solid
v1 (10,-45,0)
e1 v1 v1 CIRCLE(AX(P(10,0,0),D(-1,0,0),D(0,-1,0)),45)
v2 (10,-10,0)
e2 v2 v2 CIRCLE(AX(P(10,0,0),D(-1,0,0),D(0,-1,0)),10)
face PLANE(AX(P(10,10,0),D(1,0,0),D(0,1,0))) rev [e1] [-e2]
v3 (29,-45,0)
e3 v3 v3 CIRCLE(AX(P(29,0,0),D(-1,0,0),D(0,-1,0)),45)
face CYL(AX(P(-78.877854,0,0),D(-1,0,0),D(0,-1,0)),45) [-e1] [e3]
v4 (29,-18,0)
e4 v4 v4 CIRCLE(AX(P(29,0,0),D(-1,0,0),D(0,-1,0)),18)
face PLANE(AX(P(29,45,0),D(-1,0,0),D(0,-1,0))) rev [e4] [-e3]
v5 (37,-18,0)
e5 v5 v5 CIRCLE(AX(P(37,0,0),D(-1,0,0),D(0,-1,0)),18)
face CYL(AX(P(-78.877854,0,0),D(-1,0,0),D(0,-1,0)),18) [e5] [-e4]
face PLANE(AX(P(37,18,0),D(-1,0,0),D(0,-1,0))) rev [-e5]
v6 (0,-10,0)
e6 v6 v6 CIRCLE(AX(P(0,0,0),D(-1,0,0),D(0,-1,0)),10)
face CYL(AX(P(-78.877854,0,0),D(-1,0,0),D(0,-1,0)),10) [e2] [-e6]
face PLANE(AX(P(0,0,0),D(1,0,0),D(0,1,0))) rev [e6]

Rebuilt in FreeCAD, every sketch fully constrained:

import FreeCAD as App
import Part
import Sketcher

V = App.Vector
Q = App.Units.Quantity

doc = App.newDocument("Part")
body = doc.addObject("PartDesign::Body", "Body")

# Sketch on XY plane
sketch1 = body.newObject("Sketcher::SketchObject", "Sketch")
sketch1.AttachmentSupport = (doc.getObject("XY_Plane"), [""])
sketch1.MapMode = "FlatFace"
sketch1.addGeometry(Part.LineSegment(V(0, 10, 0), V(0, 0, 0)), False)
sketch1.addGeometry(Part.LineSegment(V(0, 0, 0), V(37, 0, 0)), False)
sketch1.addGeometry(Part.LineSegment(V(37, 0, 0), V(37, 18, 0)), False)
sketch1.addGeometry(Part.LineSegment(V(37, 18, 0), V(29, 18, 0)), False)
sketch1.addGeometry(Part.LineSegment(V(29, 18, 0), V(29, 45, 0)), False)
sketch1.addGeometry(Part.LineSegment(V(29, 45, 0), V(10, 45, 0)), False)
sketch1.addGeometry(Part.LineSegment(V(10, 45, 0), V(10, 10, 0)), False)
sketch1.addGeometry(Part.LineSegment(V(10, 10, 0), V(0, 10, 0)), False)
sketch1.addConstraint(Sketcher.Constraint("Coincident", 0, 2, 1, 1))
sketch1.addConstraint(Sketcher.Constraint("Coincident", 1, 2, 2, 1))
sketch1.addConstraint(Sketcher.Constraint("Coincident", 2, 2, 3, 1))
sketch1.addConstraint(Sketcher.Constraint("Coincident", 3, 2, 4, 1))
sketch1.addConstraint(Sketcher.Constraint("Coincident", 4, 2, 5, 1))
sketch1.addConstraint(Sketcher.Constraint("Coincident", 5, 2, 6, 1))
sketch1.addConstraint(Sketcher.Constraint("Coincident", 6, 2, 7, 1))
sketch1.addConstraint(Sketcher.Constraint("Coincident", 7, 2, 0, 1))
sketch1.addConstraint(Sketcher.Constraint("Vertical", 0))
sketch1.addConstraint(Sketcher.Constraint("Horizontal", 1))
sketch1.addConstraint(Sketcher.Constraint("Vertical", 2))
sketch1.addConstraint(Sketcher.Constraint("Horizontal", 3))
sketch1.addConstraint(Sketcher.Constraint("Vertical", 4))
sketch1.addConstraint(Sketcher.Constraint("Horizontal", 5))
sketch1.addConstraint(Sketcher.Constraint("Vertical", 6))
sketch1.addConstraint(Sketcher.Constraint("Horizontal", 7))
sketch1.addConstraint(Sketcher.Constraint("Coincident", 0, 2, -1, 1))
sketch1.addConstraint(Sketcher.Constraint("Equal", 7, 0))
sketch1.addConstraint(Sketcher.Constraint("DistanceX", 1, 1, 1, 2, Q("37 mm")))
sketch1.addConstraint(Sketcher.Constraint("DistanceX", 3, 2, 3, 1, Q("8 mm")))
sketch1.addConstraint(Sketcher.Constraint("DistanceX", 5, 2, 5, 1, Q("19 mm")))
sketch1.addConstraint(Sketcher.Constraint("DistanceY", 2, 1, 2, 2, Q("18 mm")))
sketch1.addConstraint(Sketcher.Constraint("DistanceY", 4, 1, 4, 2, Q("27 mm")))
revolution = body.newObject("PartDesign::Revolution", "Revolution")
revolution.Profile = sketch1
revolution.ReferenceAxis = (sketch1, ["H_Axis"])
revolution.Angle = 360

doc.recompute()
